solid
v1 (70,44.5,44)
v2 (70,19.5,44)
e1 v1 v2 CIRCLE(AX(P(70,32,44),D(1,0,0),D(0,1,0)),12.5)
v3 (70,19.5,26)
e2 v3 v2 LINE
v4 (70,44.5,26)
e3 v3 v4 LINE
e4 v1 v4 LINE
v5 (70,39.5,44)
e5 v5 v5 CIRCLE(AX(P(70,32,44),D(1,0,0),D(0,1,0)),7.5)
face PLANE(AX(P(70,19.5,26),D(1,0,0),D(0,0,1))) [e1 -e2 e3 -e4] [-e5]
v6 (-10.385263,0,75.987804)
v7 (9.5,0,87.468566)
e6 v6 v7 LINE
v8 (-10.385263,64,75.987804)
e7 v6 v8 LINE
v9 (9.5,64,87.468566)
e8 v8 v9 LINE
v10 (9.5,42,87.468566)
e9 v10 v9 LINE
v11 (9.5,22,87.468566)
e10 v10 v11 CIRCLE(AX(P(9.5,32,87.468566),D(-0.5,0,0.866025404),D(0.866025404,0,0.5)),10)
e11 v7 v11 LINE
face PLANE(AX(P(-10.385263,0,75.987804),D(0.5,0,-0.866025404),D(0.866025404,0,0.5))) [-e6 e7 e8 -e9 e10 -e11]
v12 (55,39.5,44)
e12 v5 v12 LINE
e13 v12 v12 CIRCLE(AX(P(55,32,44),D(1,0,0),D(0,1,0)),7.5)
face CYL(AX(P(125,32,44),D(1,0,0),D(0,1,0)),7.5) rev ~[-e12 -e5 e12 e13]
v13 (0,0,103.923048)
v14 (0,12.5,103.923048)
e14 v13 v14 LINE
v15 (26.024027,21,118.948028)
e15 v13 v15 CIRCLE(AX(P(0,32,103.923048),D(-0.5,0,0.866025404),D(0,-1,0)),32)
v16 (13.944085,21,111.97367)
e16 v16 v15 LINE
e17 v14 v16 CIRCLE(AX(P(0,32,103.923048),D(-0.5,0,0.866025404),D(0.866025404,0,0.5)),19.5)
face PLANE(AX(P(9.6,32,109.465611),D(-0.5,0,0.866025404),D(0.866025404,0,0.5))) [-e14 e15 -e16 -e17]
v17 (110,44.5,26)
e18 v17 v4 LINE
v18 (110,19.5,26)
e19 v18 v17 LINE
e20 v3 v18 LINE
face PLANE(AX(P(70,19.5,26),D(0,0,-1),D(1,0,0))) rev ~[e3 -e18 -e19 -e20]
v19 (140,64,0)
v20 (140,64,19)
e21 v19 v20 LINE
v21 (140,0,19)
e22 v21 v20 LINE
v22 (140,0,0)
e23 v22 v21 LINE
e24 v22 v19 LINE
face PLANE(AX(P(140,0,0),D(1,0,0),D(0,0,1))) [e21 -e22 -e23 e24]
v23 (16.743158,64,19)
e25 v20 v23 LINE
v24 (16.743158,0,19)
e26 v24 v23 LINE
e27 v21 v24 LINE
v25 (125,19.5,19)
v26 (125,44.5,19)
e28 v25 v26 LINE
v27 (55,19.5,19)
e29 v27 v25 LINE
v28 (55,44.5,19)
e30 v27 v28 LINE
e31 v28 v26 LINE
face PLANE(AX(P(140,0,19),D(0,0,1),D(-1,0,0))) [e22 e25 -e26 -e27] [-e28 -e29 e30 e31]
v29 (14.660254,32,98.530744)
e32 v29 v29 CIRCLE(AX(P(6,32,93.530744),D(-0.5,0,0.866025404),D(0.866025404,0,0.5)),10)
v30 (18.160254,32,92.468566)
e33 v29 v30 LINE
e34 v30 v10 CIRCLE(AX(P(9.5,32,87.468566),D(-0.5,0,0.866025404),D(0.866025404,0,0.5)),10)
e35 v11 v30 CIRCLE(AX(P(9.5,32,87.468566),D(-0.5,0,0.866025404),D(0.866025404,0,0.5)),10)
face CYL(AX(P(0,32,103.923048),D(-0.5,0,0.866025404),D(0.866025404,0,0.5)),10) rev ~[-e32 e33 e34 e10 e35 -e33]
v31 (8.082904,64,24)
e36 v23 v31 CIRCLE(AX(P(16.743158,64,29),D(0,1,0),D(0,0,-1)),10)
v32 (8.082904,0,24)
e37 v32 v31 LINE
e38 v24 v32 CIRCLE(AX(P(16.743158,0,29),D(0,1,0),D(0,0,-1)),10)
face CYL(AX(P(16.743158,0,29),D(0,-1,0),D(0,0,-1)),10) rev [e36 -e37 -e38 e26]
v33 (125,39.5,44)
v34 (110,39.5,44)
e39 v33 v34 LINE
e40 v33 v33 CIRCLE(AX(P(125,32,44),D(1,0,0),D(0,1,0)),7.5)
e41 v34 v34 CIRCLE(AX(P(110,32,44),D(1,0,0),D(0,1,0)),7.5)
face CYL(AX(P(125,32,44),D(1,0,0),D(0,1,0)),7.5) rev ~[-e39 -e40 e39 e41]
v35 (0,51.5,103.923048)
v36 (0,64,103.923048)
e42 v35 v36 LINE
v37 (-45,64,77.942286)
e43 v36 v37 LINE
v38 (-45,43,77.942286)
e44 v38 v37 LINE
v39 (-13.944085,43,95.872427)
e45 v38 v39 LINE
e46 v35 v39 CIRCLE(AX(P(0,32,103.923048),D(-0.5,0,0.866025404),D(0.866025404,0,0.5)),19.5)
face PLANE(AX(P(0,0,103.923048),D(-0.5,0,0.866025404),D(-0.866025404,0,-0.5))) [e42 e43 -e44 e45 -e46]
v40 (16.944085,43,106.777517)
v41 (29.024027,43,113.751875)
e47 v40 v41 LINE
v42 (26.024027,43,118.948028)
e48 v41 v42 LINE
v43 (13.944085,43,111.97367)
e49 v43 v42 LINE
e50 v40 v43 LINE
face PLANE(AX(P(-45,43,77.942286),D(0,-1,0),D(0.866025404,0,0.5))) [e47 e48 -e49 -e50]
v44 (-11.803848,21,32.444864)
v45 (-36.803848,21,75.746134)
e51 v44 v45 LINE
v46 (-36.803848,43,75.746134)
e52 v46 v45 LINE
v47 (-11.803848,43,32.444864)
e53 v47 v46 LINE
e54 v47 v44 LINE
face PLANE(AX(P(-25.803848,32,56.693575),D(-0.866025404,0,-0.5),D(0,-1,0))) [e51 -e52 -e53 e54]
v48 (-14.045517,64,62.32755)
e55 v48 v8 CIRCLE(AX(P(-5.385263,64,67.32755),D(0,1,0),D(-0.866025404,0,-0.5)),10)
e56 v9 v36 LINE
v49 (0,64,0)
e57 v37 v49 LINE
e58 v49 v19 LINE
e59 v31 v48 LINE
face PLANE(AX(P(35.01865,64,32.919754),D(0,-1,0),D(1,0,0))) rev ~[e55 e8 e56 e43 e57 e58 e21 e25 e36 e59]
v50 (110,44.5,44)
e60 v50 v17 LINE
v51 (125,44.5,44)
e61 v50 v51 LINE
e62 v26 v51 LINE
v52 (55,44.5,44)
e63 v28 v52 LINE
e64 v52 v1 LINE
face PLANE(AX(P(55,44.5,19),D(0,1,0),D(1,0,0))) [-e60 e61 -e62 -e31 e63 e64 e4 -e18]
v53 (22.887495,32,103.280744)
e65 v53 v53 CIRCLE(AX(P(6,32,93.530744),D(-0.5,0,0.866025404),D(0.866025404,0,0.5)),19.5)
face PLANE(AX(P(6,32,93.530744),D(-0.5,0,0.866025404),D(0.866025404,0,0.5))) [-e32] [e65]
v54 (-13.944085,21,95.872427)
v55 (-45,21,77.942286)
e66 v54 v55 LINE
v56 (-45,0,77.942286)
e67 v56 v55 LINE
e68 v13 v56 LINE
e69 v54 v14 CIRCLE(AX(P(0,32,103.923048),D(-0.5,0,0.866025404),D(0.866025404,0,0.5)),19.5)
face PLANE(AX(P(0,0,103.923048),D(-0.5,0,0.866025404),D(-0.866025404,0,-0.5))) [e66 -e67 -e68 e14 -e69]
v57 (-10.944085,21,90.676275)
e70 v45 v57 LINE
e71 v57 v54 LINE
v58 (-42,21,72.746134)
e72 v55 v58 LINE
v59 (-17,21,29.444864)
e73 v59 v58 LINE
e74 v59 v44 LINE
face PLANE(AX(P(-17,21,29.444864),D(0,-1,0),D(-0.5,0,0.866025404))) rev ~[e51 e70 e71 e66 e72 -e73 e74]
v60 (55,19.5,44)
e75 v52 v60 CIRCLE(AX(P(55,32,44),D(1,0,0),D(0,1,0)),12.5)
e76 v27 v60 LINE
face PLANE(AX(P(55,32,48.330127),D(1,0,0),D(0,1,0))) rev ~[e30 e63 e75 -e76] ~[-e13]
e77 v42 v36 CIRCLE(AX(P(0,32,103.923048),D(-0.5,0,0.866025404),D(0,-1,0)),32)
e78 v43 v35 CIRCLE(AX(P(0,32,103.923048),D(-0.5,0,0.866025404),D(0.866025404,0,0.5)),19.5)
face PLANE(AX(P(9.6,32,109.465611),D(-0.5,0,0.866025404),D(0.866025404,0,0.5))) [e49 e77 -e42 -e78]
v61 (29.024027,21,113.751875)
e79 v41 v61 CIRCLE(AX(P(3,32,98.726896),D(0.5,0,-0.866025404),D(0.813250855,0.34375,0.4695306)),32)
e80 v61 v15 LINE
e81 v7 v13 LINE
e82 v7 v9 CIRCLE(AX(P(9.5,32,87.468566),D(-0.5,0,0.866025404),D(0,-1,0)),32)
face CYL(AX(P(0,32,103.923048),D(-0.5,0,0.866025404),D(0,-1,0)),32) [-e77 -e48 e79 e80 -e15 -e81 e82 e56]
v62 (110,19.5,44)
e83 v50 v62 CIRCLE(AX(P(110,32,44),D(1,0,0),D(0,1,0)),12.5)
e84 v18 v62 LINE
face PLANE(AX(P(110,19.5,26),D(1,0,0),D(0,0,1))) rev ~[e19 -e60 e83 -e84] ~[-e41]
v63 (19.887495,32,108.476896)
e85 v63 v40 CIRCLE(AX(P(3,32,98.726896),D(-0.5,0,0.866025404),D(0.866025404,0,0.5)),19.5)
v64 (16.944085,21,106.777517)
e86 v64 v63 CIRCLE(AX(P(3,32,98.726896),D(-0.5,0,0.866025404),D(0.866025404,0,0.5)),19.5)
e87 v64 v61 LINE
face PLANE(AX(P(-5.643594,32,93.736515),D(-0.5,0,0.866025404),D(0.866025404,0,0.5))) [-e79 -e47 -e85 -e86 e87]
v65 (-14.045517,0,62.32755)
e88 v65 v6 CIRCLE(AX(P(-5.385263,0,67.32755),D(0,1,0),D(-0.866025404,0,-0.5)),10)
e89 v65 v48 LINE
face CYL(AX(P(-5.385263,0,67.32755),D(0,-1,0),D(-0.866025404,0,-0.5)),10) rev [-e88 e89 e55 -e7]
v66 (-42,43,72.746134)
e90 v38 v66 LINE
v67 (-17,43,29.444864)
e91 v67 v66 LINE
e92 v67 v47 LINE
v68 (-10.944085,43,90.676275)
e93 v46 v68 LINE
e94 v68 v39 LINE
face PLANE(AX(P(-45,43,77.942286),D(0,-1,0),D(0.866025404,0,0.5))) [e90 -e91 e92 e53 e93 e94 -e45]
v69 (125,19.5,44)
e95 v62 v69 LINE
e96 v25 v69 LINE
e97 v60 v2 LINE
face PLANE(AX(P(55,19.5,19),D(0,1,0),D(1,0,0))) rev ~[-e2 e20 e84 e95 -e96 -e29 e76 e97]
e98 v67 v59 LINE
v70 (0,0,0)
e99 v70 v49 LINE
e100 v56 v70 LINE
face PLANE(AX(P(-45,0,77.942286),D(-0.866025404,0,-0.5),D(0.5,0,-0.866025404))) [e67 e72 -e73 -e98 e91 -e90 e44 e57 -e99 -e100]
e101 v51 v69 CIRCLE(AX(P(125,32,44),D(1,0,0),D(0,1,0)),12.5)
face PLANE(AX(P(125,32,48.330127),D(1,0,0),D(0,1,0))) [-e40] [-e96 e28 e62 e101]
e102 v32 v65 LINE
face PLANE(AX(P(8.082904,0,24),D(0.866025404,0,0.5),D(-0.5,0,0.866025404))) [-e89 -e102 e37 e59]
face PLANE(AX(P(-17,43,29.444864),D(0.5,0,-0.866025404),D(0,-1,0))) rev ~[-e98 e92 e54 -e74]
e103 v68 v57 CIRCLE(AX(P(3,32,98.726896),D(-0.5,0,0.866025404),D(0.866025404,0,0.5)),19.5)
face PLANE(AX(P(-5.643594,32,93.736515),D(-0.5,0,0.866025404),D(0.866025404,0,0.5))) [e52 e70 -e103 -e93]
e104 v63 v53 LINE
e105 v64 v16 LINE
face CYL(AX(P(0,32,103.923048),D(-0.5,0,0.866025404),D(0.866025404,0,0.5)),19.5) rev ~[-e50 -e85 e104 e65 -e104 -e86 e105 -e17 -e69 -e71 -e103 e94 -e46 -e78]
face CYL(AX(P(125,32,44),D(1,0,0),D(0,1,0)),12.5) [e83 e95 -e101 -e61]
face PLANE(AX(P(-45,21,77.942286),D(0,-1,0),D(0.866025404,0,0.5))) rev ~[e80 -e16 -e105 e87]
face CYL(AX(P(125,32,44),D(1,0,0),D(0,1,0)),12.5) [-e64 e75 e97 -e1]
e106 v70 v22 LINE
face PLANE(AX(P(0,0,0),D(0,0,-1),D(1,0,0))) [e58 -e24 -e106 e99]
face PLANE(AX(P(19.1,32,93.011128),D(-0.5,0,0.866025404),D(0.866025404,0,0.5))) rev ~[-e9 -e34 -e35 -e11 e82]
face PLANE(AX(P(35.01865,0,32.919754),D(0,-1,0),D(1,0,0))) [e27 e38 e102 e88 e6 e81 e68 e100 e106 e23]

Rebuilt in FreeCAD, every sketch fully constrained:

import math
import FreeCAD as App
import Part
import Sketcher

V = App.Vector
Q = App.Units.Quantity

doc = App.newDocument("Part")
body = doc.addObject("PartDesign::Body", "Body")

# Sketch on XZ plane
sketch1 = body.newObject("Sketcher::SketchObject", "Sketch")
sketch1.AttachmentSupport = (doc.getObject("XZ_Plane"), [""])
sketch1.MapMode = "FlatFace"
sketch1.addGeometry(Part.LineSegment(V(-45, 77.942286, 0), V(0, 0, 0)), False)
sketch1.addGeometry(Part.LineSegment(V(0, 0, 0), V(140, 0, 0)), False)
sketch1.addGeometry(Part.LineSegment(V(140, 0, 0), V(140, 19, 0)), False)
sketch1.addGeometry(Part.LineSegment(V(140, 19, 0), V(16.743158, 19, 0)), False)
sketch1.addGeometry(Part.ArcOfCircle(Part.Circle(V(16.743158, 29, 0), V(0, 0, 1), 10), math.radians(-150), math.radians(-90)), False)
sketch1.addGeometry(Part.LineSegment(V(8.082904, 24, 0), V(-14.045517, 62.32755, 0)), False)
sketch1.addGeometry(Part.ArcOfCircle(Part.Circle(V(-5.385263, 67.32755, 0), V(0, 0, 1), 10), math.radians(120), math.radians(210)), False)
sketch1.addGeometry(Part.LineSegment(V(-10.385263, 75.987804, 0), V(9.5, 87.468566, 0)), False)
sketch1.addGeometry(Part.LineSegment(V(9.5, 87.468566, 0), V(0, 103.923048, 0)), False)
sketch1.addGeometry(Part.LineSegment(V(0, 103.923048, 0), V(-45, 77.942286, 0)), False)
sketch1.addConstraint(Sketcher.Constraint("Coincident", 0, 2, 1, 1))
sketch1.addConstraint(Sketcher.Constraint("Coincident", 1, 2, 2, 1))
sketch1.addConstraint(Sketcher.Constraint("Coincident", 2, 2, 3, 1))
sketch1.addConstraint(Sketcher.Constraint("Tangent", 3, 2, 4, 2))
sketch1.addConstraint(Sketcher.Constraint("Tangent", 4, 1, 5, 1))
sketch1.addConstraint(Sketcher.Constraint("Tangent", 5, 2, 6, 2))
sketch1.addConstraint(Sketcher.Constraint("Tangent", 6, 1, 7, 1))
sketch1.addConstraint(Sketcher.Constraint("Coincident", 7, 2, 8, 1))
sketch1.addConstraint(Sketcher.Constraint("Coincident", 8, 2, 9, 1))
sketch1.addConstraint(Sketcher.Constraint("Coincident", 9, 2, 0, 1))
sketch1.addConstraint(Sketcher.Constraint("Horizontal", 1))
sketch1.addConstraint(Sketcher.Constraint("Vertical", 2))
sketch1.addConstraint(Sketcher.Constraint("Horizontal", 3))
sketch1.addConstraint(Sketcher.Constraint("Coincident", 0, 2, -1, 1))
sketch1.addConstraint(Sketcher.Constraint("Equal", 4, 6))
sketch1.addConstraint(Sketcher.Constraint("PointOnObject", 8, 2, -2))
sketch1.addConstraint(Sketcher.Constraint("Parallel", 0, 5))
sketch1.addConstraint(Sketcher.Constraint("Perpendicular", 5, 7))
sketch1.addConstraint(Sketcher.Constraint("Perpendicular", 7, 8))
sketch1.addConstraint(Sketcher.Constraint("Perpendicular", 8, 9))
sketch1.addConstraint(Sketcher.Constraint("Radius", 4, Q("10 mm")))
sketch1.addConstraint(Sketcher.Constraint("DistanceX", 1, 1, 1, 2, Q("140 mm")))
sketch1.addConstraint(Sketcher.Constraint("DistanceY", 2, 1, 2, 2, Q("19 mm")))
sketch1.addConstraint(Sketcher.Constraint("Angle", 0, Q("-60 deg")))
sketch1.addConstraint(Sketcher.Constraint("Distance", 0, Q("90 mm")))
sketch1.addConstraint(Sketcher.Constraint("Distance", 8, Q("19 mm")))
sketch1.addConstraint(Sketcher.Constraint("DistanceY", 6, 3, 8, 2, Q("36.595499 mm")))
pad1 = body.newObject("PartDesign::Pad", "Pad")
pad1.Profile = sketch1
pad1.Length = 64
pad1.Reversed = True

# Sketch on an angled plane
sketch2 = body.newObject("Sketcher::SketchObject", "Sketch001")
sketch2.Placement = App.Placement(V(-45, 0, 77.942286), App.Rotation(V(0.866025404, 0, 0.5), V(0, 1, 0), V(-0.5, 0, 0.866025404), "ZXY"))
sketch2.addGeometry(Part.LineSegment(V(51.961524, 64, 0), V(51.961524, 0, 0)), False)
sketch2.addGeometry(Part.ArcOfCircle(Part.Circle(V(51.961524, 32, 0), V(0, 0, 1), 32), math.radians(-90), math.radians(90)), False)
sketch2.addConstraint(Sketcher.Constraint("Coincident", 0, 1, 1, 2))
sketch2.addConstraint(Sketcher.Constraint("Coincident", 1, 1, 0, 2))
sketch2.addConstraint(Sketcher.Constraint("Vertical", 0))
sketch2.addConstraint(Sketcher.Constraint("PointOnObject", 1, 1, -1))
sketch2.addConstraint(Sketcher.Constraint("Vertical", 1, 3, 0, 1))
sketch2.addConstraint(Sketcher.Constraint("Radius", 1, Q("32 mm")))
sketch2.addConstraint(Sketcher.Constraint("DistanceX", -1, 1, 1, 3, Q("51.961524 mm")))
pad2 = body.newObject("PartDesign::Pad", "Pad001")
pad2.Profile = sketch2
pad2.Length = 19
pad2.Reversed = True

# Sketch on an angled plane
sketch3 = body.newObject("Sketcher::SketchObject", "Sketch002")
sketch3.Placement = App.Placement(V(-45, 0, 77.942286), App.Rotation(V(0.866025404, 0, 0.5), V(0, 1, 0), V(-0.5, 0, 0.866025404), "ZXY"))
sketch3.addGeometry(Part.Circle(V(51.961524, 32, 0), V(0, 0, 1), 10), False)
sketch3.addConstraint(Sketcher.Constraint("Diameter", 0, Q("20 mm")))
sketch3.addConstraint(Sketcher.Constraint("DistanceY", -1, 1, 0, 3, Q("32 mm")))
sketch3.addConstraint(Sketcher.Constraint("DistanceX", -1, 1, 0, 3, Q("51.961524 mm")))
pocket1 = body.newObject("PartDesign::Pocket", "Pocket")
pocket1.Profile = sketch3
pocket1.Length = 19

# Sketch on an angled plane
sketch4 = body.newObject("Sketcher::SketchObject", "Sketch003")
sketch4.Placement = App.Placement(V(-45, 0, 77.942286), App.Rotation(V(0.866025404, 0, 0.5), V(0, 1, 0), V(-0.5, 0, 0.866025404), "ZXY"))
sketch4.addGeometry(Part.Circle(V(51.961524, 32, 0), V(0, 0, 1), 19.5), False)
sketch4.addConstraint(Sketcher.Constraint("Diameter", 0, Q("39 mm")))
sketch4.addConstraint(Sketcher.Constraint("DistanceY", -1, 1, 0, 3, Q("32 mm")))
sketch4.addConstraint(Sketcher.Constraint("DistanceX", -1, 1, 0, 3, Q("51.961524 mm")))
pocket2 = body.newObject("PartDesign::Pocket", "Pocket001")
pocket2.Profile = sketch4
pocket2.Length = 12

# Sketch on an angled plane
sketch5 = body.newObject("Sketcher::SketchObject", "Sketch004")
sketch5.Placement = App.Placement(V(-45, 0, 77.942286), App.Rotation(V(0.866025404, 0, 0.5), V(0, 1, 0), V(-0.5, 0, 0.866025404), "ZXY"))
sketch5.addGeometry(Part.LineSegment(V(0, 43, 0), V(0, 21, 0)), False)
sketch5.addGeometry(Part.LineSegment(V(0, 21, 0), V(83.961524, 21, 0)), False)
sketch5.addGeometry(Part.LineSegment(V(83.961524, 21, 0), V(83.961524, 43, 0)), False)
sketch5.addGeometry(Part.LineSegment(V(83.961524, 43, 0), V(0, 43, 0)), False)
sketch5.addConstraint(Sketcher.Constraint("Coincident", 0, 2, 1, 1))
sketch5.addConstraint(Sketcher.Constraint("Coincident", 1, 2, 2, 1))
sketch5.addConstraint(Sketcher.Constraint("Coincident", 2, 2, 3, 1))
sketch5.addConstraint(Sketcher.Constraint("Coincident", 3, 2, 0, 1))
sketch5.addConstraint(Sketcher.Constraint("Vertical", 0))
sketch5.addConstraint(Sketcher.Constraint("Horizontal", 1))
sketch5.addConstraint(Sketcher.Constraint("Vertical", 2))
sketch5.addConstraint(Sketcher.Constraint("Horizontal", 3))
sketch5.addConstraint(Sketcher.Constraint("PointOnObject", 0, 2, -2))
sketch5.addConstraint(Sketcher.Constraint("DistanceY", 0, 2, 0, 1, Q("22 mm")))
sketch5.addConstraint(Sketcher.Constraint("DistanceY", -1, 1, 0, 2, Q("21 mm")))
sketch5.addConstraint(Sketcher.Constraint("DistanceX", 1, 1, 1, 2, Q("83.961524 mm")))
pocket3 = body.newObject("PartDesign::Pocket", "Pocket002")
pocket3.Profile = sketch5
pocket3.Length = 6

# Sketch on an angled plane
sketch6 = body.newObject("Sketcher::SketchObject", "Sketch005")
sketch6.Placement = App.Placement(V(0, 0, 0), App.Rotation(V(0, -1, 0), V(-0.5, 0, 0.866025404), V(-0.866025404, 0, -0.5), "ZXY"))
sketch6.addGeometry(Part.LineSegment(V(-43, 90, 0), V(-43, 34, 0)), False)
sketch6.addGeometry(Part.LineSegment(V(-43, 34, 0), V(-21, 34, 0)), False)
sketch6.addGeometry(Part.LineSegment(V(-21, 34, 0), V(-21, 90, 0)), False)
sketch6.addGeometry(Part.LineSegment(V(-21, 90, 0), V(-43, 90, 0)), False)
sketch6.addConstraint(Sketcher.Constraint("Coincident", 0, 2, 1, 1))
sketch6.addConstraint(Sketcher.Constraint("Coincident", 1, 2, 2, 1))
sketch6.addConstraint(Sketcher.Constraint("Coincident", 2, 2, 3, 1))
sketch6.addConstraint(Sketcher.Constraint("Coincident", 3, 2, 0, 1))
sketch6.addConstraint(Sketcher.Constraint("Vertical", 0))
sketch6.addConstraint(Sketcher.Constraint("Horizontal", 1))
sketch6.addConstraint(Sketcher.Constraint("Vertical", 2))
sketch6.addConstraint(Sketcher.Constraint("Horizontal", 3))
sketch6.addConstraint(Sketcher.Constraint("DistanceX", 1, 1, 1, 2, Q("22 mm")))
sketch6.addConstraint(Sketcher.Constraint("DistanceY", 0, 2, 0, 1, Q("56 mm")))
sketch6.addConstraint(Sketcher.Constraint("DistanceX", 0, 2, -1, 1, Q("43 mm")))
sketch6.addConstraint(Sketcher.Constraint("DistanceY", -1, 1, 0, 2, Q("34 mm")))
pocket4 = body.newObject("PartDesign::Pocket", "Pocket003")
pocket4.Profile = sketch6
pocket4.Length = 6

# Sketch on XY plane
sketch7 = body.newObject("Sketcher::SketchObject", "Sketch006")
sketch7.AttachmentSupport = (doc.getObject("XY_Plane"), [""])
sketch7.MapMode = "FlatFace"
sketch7.AttachmentOffset = App.Placement(V(0, 0, 19), App.Rotation())
sketch7.addGeometry(Part.LineSegment(V(55, 44.5, 0), V(55, 19.5, 0)), False)
sketch7.addGeometry(Part.LineSegment(V(55, 19.5, 0), V(125, 19.5, 0)), False)
sketch7.addGeometry(Part.LineSegment(V(125, 19.5, 0), V(125, 44.5, 0)), False)
sketch7.addGeometry(Part.LineSegment(V(125, 44.5, 0), V(55, 44.5, 0)), False)
sketch7.addConstraint(Sketcher.Constraint("Coincident", 0, 2, 1, 1))
sketch7.addConstraint(Sketcher.Constraint("Coincident", 1, 2, 2, 1))
sketch7.addConstraint(Sketcher.Constraint("Coincident", 2, 2, 3, 1))
sketch7.addConstraint(Sketcher.Constraint("Coincident", 3, 2, 0, 1))
sketch7.addConstraint(Sketcher.Constraint("Vertical", 0))
sketch7.addConstraint(Sketcher.Constraint("Horizontal", 1))
sketch7.addConstraint(Sketcher.Constraint("Vertical", 2))
sketch7.addConstraint(Sketcher.Constraint("Horizontal", 3))
sketch7.addConstraint(Sketcher.Constraint("DistanceX", 1, 1, 1, 2, Q("70 mm")))
sketch7.addConstraint(Sketcher.Constraint("DistanceY", 0, 2, 0, 1, Q("25 mm")))
sketch7.addConstraint(Sketcher.Constraint("DistanceX", -1, 1, 0, 2, Q("55 mm")))
sketch7.addConstraint(Sketcher.Constraint("DistanceY", -1, 1, 0, 2, Q("19.5 mm")))
pad3 = body.newObject("PartDesign::Pad", "Pad002")
pad3.Profile = sketch7
pad3.Length = 25

# Sketch on YZ plane
sketch8 = body.newObject("Sketcher::SketchObject", "Sketch007")
sketch8.AttachmentSupport = (doc.getObject("YZ_Plane"), [""])
sketch8.MapMode = "FlatFace"
sketch8.AttachmentOffset = App.Placement(V(0, 0, 125), App.Rotation())
sketch8.addGeometry(Part.LineSegment(V(19.5, 44, 0), V(44.5, 44, 0)), False)
sketch8.addGeometry(Part.ArcOfCircle(Part.Circle(V(32, 44, 0), V(0, 0, 1), 12.5), math.radians(0), math.radians(180)), False)
sketch8.addConstraint(Sketcher.Constraint("Coincident", 0, 1, 1, 2))
sketch8.addConstraint(Sketcher.Constraint("Coincident", 1, 1, 0, 2))
sketch8.addConstraint(Sketcher.Constraint("Horizontal", 0))
sketch8.addConstraint(Sketcher.Constraint("Horizontal", 1, 3, 0, 1))
sketch8.addConstraint(Sketcher.Constraint("Radius", 1, Q("12.5 mm")))
sketch8.addConstraint(Sketcher.Constraint("DistanceX", -1, 1, 1, 3, Q("32 mm")))
sketch8.addConstraint(Sketcher.Constraint("DistanceY", -1, 1, 1, 3, Q("44 mm")))
pad4 = body.newObject("PartDesign::Pad", "Pad003")
pad4.Profile = sketch8
pad4.Length = 70
pad4.Reversed = True

# Sketch on YZ plane
sketch9 = body.newObject("Sketcher::SketchObject", "Sketch008")
sketch9.AttachmentSupport = (doc.getObject("YZ_Plane"), [""])
sketch9.MapMode = "FlatFace"
sketch9.AttachmentOffset = App.Placement(V(0, 0, 125), App.Rotation())
sketch9.addGeometry(Part.Circle(V(32, 44, 0), V(0, 0, 1), 7.5), False)
sketch9.addConstraint(Sketcher.Constraint("Diameter", 0, Q("15 mm")))
sketch9.addConstraint(Sketcher.Constraint("DistanceX", -1, 1, 0, 3, Q("32 mm")))
sketch9.addConstraint(Sketcher.Constraint("DistanceY", -1, 1, 0, 3, Q("44 mm")))
pocket5 = body.newObject("PartDesign::Pocket", "Pocket004")
pocket5.Profile = sketch9
pocket5.Length = 70

# Sketch on XZ plane
sketch10 = body.newObject("Sketcher::SketchObject", "Sketch009")
sketch10.AttachmentSupport = (doc.getObject("XZ_Plane"), [""])
sketch10.MapMode = "FlatFace"
sketch10.AttachmentOffset = App.Placement(V(0, 0, -19.5), App.Rotation())
sketch10.addGeometry(Part.LineSegment(V(70, 66.120677, 0), V(70, 26, 0)), False)
sketch10.addGeometry(Part.LineSegment(V(70, 26, 0), V(110, 26, 0)), False)
sketch10.addGeometry(Part.LineSegment(V(110, 26, 0), V(110, 66.120677, 0)), False)
sketch10.addGeometry(Part.LineSegment(V(110, 66.120677, 0), V(70, 66.120677, 0)), False)
sketch10.addConstraint(Sketcher.Constraint("Coincident", 0, 2, 1, 1))
sketch10.addConstraint(Sketcher.Constraint("Coincident", 1, 2, 2, 1))
sketch10.addConstraint(Sketcher.Constraint("Coincident", 2, 2, 3, 1))
sketch10.addConstraint(Sketcher.Constraint("Coincident", 3, 2, 0, 1))
sketch10.addConstraint(Sketcher.Constraint("Vertical", 0))
sketch10.addConstraint(Sketcher.Constraint("Horizontal", 1))
sketch10.addConstraint(Sketcher.Constraint("Vertical", 2))
sketch10.addConstraint(Sketcher.Constraint("Horizontal", 3))
sketch10.addConstraint(Sketcher.Constraint("DistanceX", 1, 1, 1, 2, Q("40 mm")))
sketch10.addConstraint(Sketcher.Constraint("DistanceX", -1, 1, 0, 2, Q("70 mm")))
sketch10.addConstraint(Sketcher.Constraint("DistanceY", -1, 1, 0, 2, Q("26 mm")))
sketch10.addConstraint(Sketcher.Constraint("DistanceY", 0, 2, 0, 1, Q("40.120677 mm")))
pocket6 = body.newObject("PartDesign::Pocket", "Pocket005")
pocket6.Profile = sketch10
pocket6.Type = "ThroughAll"

doc.recompute()
